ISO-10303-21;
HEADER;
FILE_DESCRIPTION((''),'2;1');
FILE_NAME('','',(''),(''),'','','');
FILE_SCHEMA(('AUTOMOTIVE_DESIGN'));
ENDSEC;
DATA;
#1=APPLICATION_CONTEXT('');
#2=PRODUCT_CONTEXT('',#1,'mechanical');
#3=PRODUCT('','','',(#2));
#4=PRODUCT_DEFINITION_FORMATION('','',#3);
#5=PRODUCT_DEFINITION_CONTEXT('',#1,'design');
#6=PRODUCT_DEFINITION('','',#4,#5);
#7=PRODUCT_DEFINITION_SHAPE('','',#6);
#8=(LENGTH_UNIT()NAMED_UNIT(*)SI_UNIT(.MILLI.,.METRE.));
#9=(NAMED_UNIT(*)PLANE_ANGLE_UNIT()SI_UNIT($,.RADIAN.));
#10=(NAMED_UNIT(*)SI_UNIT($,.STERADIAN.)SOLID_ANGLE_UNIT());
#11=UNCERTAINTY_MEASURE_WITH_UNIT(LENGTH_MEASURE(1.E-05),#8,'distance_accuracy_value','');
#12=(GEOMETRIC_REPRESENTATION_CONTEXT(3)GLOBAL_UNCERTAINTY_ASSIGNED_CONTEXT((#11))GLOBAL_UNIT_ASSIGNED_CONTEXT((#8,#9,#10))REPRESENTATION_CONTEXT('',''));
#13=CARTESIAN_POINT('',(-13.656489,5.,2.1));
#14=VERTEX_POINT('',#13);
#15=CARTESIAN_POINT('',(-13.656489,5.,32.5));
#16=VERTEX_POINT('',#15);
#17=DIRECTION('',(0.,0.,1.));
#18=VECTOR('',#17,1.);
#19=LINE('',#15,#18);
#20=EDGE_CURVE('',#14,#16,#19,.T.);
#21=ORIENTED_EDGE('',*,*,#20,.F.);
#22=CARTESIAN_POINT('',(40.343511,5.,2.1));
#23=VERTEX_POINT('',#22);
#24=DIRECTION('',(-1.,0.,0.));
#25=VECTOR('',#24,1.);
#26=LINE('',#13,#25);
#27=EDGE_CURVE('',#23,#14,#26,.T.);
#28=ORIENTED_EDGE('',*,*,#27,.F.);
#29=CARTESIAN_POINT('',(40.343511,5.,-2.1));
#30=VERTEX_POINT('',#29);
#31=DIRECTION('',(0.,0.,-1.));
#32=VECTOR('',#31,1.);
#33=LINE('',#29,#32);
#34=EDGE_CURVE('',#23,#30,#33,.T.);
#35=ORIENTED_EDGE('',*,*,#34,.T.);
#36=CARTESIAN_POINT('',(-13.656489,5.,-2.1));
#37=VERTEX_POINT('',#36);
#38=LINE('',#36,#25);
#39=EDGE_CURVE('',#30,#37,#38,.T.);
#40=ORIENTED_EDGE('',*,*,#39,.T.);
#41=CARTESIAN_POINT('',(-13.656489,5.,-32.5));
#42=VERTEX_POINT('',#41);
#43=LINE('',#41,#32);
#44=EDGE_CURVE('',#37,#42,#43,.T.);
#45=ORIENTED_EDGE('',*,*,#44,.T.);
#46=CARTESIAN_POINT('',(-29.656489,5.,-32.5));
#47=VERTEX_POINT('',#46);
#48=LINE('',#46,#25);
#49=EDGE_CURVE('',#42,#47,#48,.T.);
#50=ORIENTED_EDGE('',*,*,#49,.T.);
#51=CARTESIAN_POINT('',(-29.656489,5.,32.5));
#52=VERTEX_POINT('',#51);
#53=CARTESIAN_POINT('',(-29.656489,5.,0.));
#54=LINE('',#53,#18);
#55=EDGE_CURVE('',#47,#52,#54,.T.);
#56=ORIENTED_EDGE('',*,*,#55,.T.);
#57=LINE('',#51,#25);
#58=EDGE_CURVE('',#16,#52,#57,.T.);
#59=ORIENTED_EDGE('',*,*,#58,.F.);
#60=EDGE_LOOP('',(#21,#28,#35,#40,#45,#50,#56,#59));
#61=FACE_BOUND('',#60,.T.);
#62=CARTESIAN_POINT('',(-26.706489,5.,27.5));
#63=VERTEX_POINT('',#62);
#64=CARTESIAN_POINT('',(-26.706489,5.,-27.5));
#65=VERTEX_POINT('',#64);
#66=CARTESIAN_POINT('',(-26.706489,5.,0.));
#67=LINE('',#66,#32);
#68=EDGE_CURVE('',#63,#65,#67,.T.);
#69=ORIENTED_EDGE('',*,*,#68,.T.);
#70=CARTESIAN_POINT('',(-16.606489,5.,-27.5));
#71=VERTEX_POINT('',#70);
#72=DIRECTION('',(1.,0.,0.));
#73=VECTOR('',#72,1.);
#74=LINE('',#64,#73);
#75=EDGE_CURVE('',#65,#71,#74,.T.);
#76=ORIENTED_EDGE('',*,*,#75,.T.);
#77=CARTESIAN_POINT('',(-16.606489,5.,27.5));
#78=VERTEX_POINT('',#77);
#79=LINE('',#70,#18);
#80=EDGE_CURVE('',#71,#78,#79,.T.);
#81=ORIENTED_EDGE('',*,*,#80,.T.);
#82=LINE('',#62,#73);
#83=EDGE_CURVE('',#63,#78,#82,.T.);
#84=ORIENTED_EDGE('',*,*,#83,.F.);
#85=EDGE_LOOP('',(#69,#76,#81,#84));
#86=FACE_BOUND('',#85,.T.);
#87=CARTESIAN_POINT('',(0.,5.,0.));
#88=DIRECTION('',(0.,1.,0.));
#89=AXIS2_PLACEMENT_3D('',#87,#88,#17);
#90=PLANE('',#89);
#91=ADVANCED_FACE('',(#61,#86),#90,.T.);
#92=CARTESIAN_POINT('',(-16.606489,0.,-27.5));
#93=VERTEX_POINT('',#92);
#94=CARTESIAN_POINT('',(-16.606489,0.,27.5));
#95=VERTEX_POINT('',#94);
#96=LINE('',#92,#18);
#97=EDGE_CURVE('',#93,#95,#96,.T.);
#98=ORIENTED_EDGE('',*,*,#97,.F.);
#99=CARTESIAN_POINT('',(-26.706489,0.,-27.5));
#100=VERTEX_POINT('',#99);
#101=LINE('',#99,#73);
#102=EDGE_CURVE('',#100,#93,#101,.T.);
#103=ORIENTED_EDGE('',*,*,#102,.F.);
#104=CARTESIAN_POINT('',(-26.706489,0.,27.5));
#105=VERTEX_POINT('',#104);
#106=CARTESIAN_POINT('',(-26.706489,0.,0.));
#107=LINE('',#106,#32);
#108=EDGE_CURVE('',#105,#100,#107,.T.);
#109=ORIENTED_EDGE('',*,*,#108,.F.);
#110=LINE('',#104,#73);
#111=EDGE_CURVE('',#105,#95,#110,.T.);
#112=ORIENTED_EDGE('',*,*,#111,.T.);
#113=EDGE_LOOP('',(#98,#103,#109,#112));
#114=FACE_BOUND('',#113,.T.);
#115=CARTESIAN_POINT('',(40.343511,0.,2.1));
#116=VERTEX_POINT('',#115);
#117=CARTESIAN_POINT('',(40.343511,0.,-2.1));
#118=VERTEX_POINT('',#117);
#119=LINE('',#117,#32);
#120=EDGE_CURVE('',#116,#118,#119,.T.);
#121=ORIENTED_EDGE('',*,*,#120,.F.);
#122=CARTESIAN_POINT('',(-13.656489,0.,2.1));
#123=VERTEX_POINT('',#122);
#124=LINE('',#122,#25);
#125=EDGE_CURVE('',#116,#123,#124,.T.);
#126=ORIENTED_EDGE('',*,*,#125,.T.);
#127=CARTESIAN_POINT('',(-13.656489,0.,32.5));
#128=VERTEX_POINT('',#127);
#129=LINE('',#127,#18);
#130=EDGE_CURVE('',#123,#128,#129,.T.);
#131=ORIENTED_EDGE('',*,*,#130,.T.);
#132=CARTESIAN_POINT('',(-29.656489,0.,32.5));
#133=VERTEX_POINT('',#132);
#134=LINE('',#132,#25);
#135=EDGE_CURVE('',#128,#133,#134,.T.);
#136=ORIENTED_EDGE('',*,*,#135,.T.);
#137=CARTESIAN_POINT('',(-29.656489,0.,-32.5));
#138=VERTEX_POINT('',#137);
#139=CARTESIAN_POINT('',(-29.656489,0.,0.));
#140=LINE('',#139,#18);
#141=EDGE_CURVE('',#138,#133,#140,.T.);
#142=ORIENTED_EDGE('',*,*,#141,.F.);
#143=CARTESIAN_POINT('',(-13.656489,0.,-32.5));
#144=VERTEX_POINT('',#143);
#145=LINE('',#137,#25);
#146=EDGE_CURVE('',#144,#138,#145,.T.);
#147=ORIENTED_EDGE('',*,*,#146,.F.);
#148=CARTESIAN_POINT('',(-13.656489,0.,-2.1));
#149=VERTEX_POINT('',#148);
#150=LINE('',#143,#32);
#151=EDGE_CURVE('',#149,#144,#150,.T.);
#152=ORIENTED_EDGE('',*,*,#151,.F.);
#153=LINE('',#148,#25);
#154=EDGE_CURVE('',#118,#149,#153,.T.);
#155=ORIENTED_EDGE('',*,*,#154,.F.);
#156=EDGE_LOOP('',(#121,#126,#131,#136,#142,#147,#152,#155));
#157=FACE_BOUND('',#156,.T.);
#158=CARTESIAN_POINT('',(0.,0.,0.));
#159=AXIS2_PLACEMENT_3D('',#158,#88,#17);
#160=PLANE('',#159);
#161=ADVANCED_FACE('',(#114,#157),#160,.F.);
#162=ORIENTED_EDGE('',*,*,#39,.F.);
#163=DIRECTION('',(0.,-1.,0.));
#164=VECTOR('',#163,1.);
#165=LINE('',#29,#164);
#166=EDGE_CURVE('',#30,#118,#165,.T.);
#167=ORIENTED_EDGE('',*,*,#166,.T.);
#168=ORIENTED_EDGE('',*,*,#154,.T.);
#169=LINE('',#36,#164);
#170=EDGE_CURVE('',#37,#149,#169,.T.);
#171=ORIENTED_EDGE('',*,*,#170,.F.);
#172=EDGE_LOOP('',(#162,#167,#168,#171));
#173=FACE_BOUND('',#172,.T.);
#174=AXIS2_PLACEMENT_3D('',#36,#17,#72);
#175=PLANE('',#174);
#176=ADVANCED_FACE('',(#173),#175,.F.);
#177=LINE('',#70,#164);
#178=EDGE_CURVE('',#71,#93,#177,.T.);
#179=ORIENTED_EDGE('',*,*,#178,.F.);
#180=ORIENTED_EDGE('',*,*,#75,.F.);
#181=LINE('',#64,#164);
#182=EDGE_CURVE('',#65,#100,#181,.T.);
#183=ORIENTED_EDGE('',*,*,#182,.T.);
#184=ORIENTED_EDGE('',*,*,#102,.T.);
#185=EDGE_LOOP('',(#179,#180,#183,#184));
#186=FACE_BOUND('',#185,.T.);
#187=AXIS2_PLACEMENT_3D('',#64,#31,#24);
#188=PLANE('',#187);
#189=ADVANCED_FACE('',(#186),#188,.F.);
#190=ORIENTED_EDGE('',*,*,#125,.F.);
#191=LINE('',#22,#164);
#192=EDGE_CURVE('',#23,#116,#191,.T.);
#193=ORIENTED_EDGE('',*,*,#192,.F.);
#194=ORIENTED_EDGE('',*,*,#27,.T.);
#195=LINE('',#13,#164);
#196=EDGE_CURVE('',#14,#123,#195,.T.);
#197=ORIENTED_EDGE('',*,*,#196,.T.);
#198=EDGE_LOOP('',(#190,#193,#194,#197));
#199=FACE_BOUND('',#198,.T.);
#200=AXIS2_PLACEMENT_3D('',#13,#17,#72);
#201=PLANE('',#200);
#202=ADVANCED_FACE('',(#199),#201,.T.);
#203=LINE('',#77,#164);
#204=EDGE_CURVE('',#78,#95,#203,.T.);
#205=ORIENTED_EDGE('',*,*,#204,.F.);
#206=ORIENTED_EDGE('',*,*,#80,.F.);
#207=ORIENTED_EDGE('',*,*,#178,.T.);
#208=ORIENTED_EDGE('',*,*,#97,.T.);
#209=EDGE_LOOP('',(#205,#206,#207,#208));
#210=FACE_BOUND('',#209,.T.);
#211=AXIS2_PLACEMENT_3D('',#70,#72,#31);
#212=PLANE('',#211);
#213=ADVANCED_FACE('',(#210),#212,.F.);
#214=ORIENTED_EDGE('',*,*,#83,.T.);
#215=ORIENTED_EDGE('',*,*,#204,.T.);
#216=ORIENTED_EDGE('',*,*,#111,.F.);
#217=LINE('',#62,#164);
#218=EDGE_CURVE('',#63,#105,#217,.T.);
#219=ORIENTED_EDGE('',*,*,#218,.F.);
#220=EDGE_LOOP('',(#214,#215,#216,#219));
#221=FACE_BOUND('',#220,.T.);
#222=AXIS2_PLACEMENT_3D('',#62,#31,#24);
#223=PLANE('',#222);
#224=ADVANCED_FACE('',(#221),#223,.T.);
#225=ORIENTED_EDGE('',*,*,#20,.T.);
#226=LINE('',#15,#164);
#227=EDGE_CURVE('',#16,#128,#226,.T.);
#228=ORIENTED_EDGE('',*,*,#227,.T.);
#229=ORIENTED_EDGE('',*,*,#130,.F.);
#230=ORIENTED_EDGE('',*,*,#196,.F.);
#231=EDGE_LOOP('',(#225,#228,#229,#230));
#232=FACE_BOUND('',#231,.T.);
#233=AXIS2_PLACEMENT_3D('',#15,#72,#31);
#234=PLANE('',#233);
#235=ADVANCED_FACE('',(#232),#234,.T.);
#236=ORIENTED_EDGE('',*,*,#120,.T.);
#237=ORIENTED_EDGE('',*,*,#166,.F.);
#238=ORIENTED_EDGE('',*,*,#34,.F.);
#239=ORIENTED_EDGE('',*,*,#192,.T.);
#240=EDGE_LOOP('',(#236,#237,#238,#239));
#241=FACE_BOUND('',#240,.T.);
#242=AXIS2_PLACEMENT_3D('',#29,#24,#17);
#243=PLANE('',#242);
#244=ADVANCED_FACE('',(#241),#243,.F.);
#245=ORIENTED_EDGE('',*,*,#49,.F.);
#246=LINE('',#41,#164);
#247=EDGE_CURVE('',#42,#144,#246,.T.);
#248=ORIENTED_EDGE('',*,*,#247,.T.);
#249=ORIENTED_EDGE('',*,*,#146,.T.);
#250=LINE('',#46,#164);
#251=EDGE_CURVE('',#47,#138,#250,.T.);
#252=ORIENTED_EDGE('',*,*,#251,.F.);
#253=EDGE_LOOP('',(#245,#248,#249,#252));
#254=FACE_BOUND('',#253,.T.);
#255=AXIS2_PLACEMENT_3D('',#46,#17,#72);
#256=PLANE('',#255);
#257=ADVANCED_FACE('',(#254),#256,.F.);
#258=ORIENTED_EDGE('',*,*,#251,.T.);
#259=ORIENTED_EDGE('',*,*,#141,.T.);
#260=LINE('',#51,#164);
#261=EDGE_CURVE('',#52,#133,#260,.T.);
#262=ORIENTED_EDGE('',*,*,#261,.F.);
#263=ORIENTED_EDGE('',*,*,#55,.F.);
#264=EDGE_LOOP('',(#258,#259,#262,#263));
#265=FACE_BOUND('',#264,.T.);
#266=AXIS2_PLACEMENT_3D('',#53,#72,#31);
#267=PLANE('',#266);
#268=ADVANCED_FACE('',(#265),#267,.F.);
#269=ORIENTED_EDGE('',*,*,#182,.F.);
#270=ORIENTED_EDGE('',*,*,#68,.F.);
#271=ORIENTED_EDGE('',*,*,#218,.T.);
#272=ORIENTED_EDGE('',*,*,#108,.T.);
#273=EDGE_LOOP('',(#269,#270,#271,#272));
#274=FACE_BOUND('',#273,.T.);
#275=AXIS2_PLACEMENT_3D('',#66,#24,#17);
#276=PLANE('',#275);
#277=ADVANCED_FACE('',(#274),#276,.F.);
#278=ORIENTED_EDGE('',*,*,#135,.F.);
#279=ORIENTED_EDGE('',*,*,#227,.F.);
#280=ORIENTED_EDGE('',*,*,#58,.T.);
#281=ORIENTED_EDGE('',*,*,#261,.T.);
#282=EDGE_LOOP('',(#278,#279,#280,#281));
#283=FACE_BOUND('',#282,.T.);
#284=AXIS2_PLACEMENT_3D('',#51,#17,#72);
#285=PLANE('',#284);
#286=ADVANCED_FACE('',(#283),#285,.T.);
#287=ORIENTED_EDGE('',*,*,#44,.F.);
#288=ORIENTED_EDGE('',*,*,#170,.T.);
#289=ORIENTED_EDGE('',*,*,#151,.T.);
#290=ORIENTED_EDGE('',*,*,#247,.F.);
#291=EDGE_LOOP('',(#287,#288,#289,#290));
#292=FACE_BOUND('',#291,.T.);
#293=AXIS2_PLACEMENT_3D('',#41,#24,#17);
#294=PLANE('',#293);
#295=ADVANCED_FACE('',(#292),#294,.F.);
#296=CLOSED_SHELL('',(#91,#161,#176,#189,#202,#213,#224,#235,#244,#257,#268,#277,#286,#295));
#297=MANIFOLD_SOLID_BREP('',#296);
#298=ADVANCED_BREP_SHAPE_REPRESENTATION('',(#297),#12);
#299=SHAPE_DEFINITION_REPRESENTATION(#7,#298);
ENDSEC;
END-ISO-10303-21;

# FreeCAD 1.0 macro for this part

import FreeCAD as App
import Part
import Sketcher

V = App.Vector


def add_polygon(sketch, points):
    """Adds a closed chain of lines whose ends are joined by coincident constraints."""
    first, n = sketch.GeometryCount, len(points)
    for a, b in zip(points, points[1:] + points[:1]):
        sketch.addGeometry(Part.LineSegment(App.Vector(*a, 0), App.Vector(*b, 0)), False)
    for i in range(n):
        sketch.addConstraint(Sketcher.Constraint("Coincident", first + i, 2, first + (i + 1) % n, 1))

doc = App.newDocument("Part")
body = doc.addObject("PartDesign::Body", "Body")

sketch1 = body.newObject("Sketcher::SketchObject", "Sketch")
sketch1.AttachmentSupport = (doc.getObject("XZ_Plane"), [""])
sketch1.MapMode = "FlatFace"
add_polygon(sketch1, [(-29.7, -32.5), (-29.7, 0), (-26.7, 0), (-26.7, -27.5), (-16.6, -27.5), (-16.6, 0), (40.3, 0), (40.3, -2.1), (-13.7, -2.1), (-13.7, -32.5)])
sketch1.addConstraint(Sketcher.Constraint("Vertical", 0))
sketch1.addConstraint(Sketcher.Constraint("Horizontal", 1))
sketch1.addConstraint(Sketcher.Constraint("Vertical", 2))
sketch1.addConstraint(Sketcher.Constraint("Horizontal", 3))
sketch1.addConstraint(Sketcher.Constraint("Vertical", 4))
sketch1.addConstraint(Sketcher.Constraint("Horizontal", 5))
sketch1.addConstraint(Sketcher.Constraint("Vertical", 6))
sketch1.addConstraint(Sketcher.Constraint("Horizontal", 7))
sketch1.addConstraint(Sketcher.Constraint("Vertical", 8))
sketch1.addConstraint(Sketcher.Constraint("Horizontal", 9))
sketch1.addConstraint(Sketcher.Constraint("PointOnObject", 0, 2, -1))
sketch1.addConstraint(Sketcher.Constraint("PointOnObject", 4, 2, -1))
sketch1.addConstraint(Sketcher.Constraint("DistanceX", 7, 2, 7, 1, 54.0))
sketch1.addConstraint(Sketcher.Constraint("DistanceX", 9, 2, 9, 1, 16.0))
sketch1.addConstraint(Sketcher.Constraint("DistanceX", 3, 1, 3, 2, 10.1))
sketch1.addConstraint(Sketcher.Constraint("DistanceY", 0, 1, 0, 2, 32.5))
sketch1.addConstraint(Sketcher.Constraint("DistanceY", 2, 2, 2, 1, 27.5))
sketch1.addConstraint(Sketcher.Constraint("DistanceY", 6, 2, 6, 1, 2.1))
sketch1.addConstraint(Sketcher.Constraint("DistanceX", 1, 1, 1, 2, 2.95))
sketch1.addConstraint(Sketcher.Constraint("DistanceX", 0, 2, -1, 1, 29.656489))
pad1 = body.newObject("PartDesign::Pad", "Pad")
pad1.Profile = sketch1
pad1.Length = 5
pad1.Reversed = True
doc.recompute()

mirrored = body.newObject("PartDesign::Mirrored", "Mirrored")
mirrored.Originals = [pad1]
mirrored.MirrorPlane = (doc.getObject("XY_Plane"), [""])
body.Tip = mirrored

doc.recompute()
